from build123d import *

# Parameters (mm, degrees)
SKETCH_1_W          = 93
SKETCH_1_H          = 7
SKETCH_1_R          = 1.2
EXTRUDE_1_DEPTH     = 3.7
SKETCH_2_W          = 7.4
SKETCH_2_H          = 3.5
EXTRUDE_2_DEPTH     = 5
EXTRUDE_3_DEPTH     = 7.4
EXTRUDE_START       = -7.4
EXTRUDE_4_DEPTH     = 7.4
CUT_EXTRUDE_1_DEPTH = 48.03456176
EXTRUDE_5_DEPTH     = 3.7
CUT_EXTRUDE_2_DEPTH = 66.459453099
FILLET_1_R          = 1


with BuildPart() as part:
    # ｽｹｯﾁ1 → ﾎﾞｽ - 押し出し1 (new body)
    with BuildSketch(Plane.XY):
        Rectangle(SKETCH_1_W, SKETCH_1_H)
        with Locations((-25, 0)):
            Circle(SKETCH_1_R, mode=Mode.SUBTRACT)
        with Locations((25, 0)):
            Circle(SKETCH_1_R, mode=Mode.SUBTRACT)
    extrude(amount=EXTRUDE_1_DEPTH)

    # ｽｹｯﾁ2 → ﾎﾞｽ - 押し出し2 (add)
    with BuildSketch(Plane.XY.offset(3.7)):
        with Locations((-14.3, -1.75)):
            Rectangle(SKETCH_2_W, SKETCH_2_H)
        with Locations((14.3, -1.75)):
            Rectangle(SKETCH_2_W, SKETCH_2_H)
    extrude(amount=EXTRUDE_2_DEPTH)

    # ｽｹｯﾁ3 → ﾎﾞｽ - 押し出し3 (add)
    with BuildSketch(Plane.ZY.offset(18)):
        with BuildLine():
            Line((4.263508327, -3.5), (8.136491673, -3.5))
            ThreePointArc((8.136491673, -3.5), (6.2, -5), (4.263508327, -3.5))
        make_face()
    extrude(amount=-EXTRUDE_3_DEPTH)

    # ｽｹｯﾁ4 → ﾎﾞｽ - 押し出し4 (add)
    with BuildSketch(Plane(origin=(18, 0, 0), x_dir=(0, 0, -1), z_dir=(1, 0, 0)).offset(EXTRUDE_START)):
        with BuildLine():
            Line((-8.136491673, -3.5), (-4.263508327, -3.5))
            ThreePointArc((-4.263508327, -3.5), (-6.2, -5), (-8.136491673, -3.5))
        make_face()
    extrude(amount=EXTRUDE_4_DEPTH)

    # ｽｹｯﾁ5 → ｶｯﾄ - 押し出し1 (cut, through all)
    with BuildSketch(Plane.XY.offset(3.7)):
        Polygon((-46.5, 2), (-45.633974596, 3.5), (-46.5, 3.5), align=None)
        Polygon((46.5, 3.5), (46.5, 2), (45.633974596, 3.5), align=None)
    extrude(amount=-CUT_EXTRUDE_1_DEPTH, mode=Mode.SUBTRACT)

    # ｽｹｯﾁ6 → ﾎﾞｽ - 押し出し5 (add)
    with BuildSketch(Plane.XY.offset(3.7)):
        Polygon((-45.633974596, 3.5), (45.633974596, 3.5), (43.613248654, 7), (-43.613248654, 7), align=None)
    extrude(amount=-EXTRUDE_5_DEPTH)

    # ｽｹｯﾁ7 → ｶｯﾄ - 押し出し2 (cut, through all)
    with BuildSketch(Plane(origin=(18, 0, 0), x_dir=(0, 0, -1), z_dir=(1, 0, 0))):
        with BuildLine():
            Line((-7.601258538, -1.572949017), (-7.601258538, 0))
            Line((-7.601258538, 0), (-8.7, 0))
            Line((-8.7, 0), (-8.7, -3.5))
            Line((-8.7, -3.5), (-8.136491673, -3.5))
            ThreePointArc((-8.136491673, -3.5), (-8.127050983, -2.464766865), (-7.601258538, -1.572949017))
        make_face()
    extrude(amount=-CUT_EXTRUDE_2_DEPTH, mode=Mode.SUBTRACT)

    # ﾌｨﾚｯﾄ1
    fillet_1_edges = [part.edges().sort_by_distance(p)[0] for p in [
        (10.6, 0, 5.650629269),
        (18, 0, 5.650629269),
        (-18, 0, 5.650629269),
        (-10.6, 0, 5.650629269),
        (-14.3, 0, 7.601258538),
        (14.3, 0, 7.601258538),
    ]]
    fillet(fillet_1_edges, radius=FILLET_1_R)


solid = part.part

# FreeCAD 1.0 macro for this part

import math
import FreeCAD as App
import Part
import Sketcher

V = App.Vector
Q = App.Units.Quantity


def edges_at(feature, points):
    """Names of the edges that pass closest to the given points."""
    edges = feature.Shape.Edges
    near = lambda p: min(range(len(edges)), key=lambda i: edges[i].distToShape(Part.Vertex(*p))[0])
    return sorted({f"Edge{near(p) + 1}" for p in points})


def add_polygon(sketch, points):
    """Adds a closed chain of lines whose ends are joined by coincident constraints."""
    first, n = sketch.GeometryCount, len(points)
    for a, b in zip(points, points[1:] + points[:1]):
        sketch.addGeometry(Part.LineSegment(App.Vector(*a, 0), App.Vector(*b, 0)), False)
    for i in range(n):
        sketch.addConstraint(Sketcher.Constraint("Coincident", first + i, 2, first + (i + 1) % n, 1))

doc = App.newDocument("Part")
body = doc.addObject("PartDesign::Body", "Body")

sketch1 = doc.addObject("Sketcher::SketchObject", "Sketch")
body.addObject(sketch1)
sketch1.AttachmentSupport = (doc.XY_Plane, [""])
sketch1.MapMode = "FlatFace"
add_polygon(sketch1, [(-46.5, 3.5), (-46.5, -3.5), (46.5, -3.5), (46.5, 3.5)])
sketch1.addGeometry(Part.Circle(V(-25, 0, 0), V(0, 0, 1), 1.2), False)
sketch1.addGeometry(Part.Circle(V(25, 0, 0), V(0, 0, 1), 1.2), False)
sketch1.addConstraint([
    Sketcher.Constraint("Vertical", 0),
    Sketcher.Constraint("Horizontal", 1),
    Sketcher.Constraint("Vertical", 2),
    Sketcher.Constraint("Horizontal", 3),
    Sketcher.Constraint("Equal", 4, 5),
    Sketcher.Constraint("Symmetric", 4, 3, 5, 3, -1, 1),
    Sketcher.Constraint("Symmetric", 0, 2, 2, 2, -1, 1),
    Sketcher.Constraint("PointOnObject", 4, 3, -1),
    Sketcher.Constraint("Diameter", 4, Q("2.4 mm")),
    Sketcher.Constraint("DistanceX", 1, 1, 1, 2, Q("93 mm")),
    Sketcher.Constraint("DistanceY", 0, 2, 0, 1, Q("7 mm")),
    Sketcher.Constraint("DistanceX", 4, 3, -1, 1, Q("25 mm")),
])
pad1 = doc.addObject("PartDesign::Pad", "Pad")
body.addObject(pad1)
pad1.Profile = sketch1
pad1.Length = 3.7

sketch2 = doc.addObject("Sketcher::SketchObject", "Sketch001")
body.addObject(sketch2)
sketch2.AttachmentSupport = (doc.XY_Plane, [""])
sketch2.MapMode = "FlatFace"
sketch2.AttachmentOffset = App.Placement(V(0, 0, 3.7), App.Rotation())
add_polygon(sketch2, [(-18, 0), (-18, -3.5), (-10.6, -3.5), (-10.6, 0)])
add_polygon(sketch2, [(10.6, 0), (10.6, -3.5), (18, -3.5), (18, 0)])
sketch2.addConstraint([
    Sketcher.Constraint("Vertical", 0),
    Sketcher.Constraint("Horizontal", 1),
    Sketcher.Constraint("Vertical", 2),
    Sketcher.Constraint("Horizontal", 3),
    Sketcher.Constraint("Vertical", 4),
    Sketcher.Constraint("Horizontal", 5),
    Sketcher.Constraint("Vertical", 6),
    Sketcher.Constraint("Horizontal", 7),
    Sketcher.Constraint("Symmetric", 3, 2, 6, 2, -1, 1),
    Sketcher.Constraint("Symmetric", 1, 2, 4, 2, -2),
    Sketcher.Constraint("PointOnObject", 2, 2, -1),
    Sketcher.Constraint("DistanceX", 1, 1, 1, 2, Q("7.4 mm")),
    Sketcher.Constraint("DistanceY", 0, 2, 0, 1, Q("3.5 mm")),
    Sketcher.Constraint("DistanceX", 0, 2, -1, 1, Q("18 mm")),
])
pad2 = doc.addObject("PartDesign::Pad", "Pad001")
body.addObject(pad2)
pad2.Profile = sketch2
pad2.Length = 5

sketch3 = doc.addObject("Sketcher::SketchObject", "Sketch002")
body.addObject(sketch3)
sketch3.AttachmentSupport = (doc.YZ_Plane, [""])
sketch3.MapMode = "FlatFace"
sketch3.AttachmentOffset = App.Placement(V(0, 0, -18), App.Rotation())
sketch3.addGeometry([
    Part.LineSegment(V(-3.5, 8.1, 0), V(-3.5, 4.3, 0)),
    Part.ArcOfCircle(Part.Circle(V(-3, 6.2, 0), V(0, 0, 1), 2), math.radians(104), math.radians(256)),
], False)
sketch3.addConstraint([
    Sketcher.Constraint("Coincident", 0, 1, 1, 1),
    Sketcher.Constraint("Coincident", 1, 2, 0, 2),
    Sketcher.Constraint("Vertical", 0),
    Sketcher.Constraint("Radius", 1, Q("2 mm")),
    Sketcher.Constraint("DistanceX", 1, 3, -1, 1, Q("3 mm")),
    Sketcher.Constraint("DistanceY", -1, 1, 1, 3, Q("6.2 mm")),
    Sketcher.Constraint("DistanceX", 0, 1, -1, 1, Q("3.5 mm")),
])
pad3 = doc.addObject("PartDesign::Pad", "Pad002")
body.addObject(pad3)
pad3.Profile = sketch3
pad3.Length = 7.4

sketch4 = doc.addObject("Sketcher::SketchObject", "Sketch003")
body.addObject(sketch4)
sketch4.AttachmentSupport = (doc.YZ_Plane, [""])
sketch4.MapMode = "FlatFace"
sketch4.AttachmentOffset = App.Placement(V(0, 0, 10.6), App.Rotation())
sketch4.addGeometry([
    Part.LineSegment(V(-3.5, 4.3, 0), V(-3.5, 8.1, 0)),
    Part.ArcOfCircle(Part.Circle(V(-3, 6.2, 0), V(0, 0, 1), 2), math.radians(104), math.radians(256)),
], False)
sketch4.addConstraint([
    Sketcher.Constraint("Coincident", 0, 1, 1, 2),
    Sketcher.Constraint("Coincident", 1, 1, 0, 2),
    Sketcher.Constraint("Vertical", 0),
    Sketcher.Constraint("Radius", 1, Q("2 mm")),
    Sketcher.Constraint("DistanceX", 1, 3, -1, 1, Q("3 mm")),
    Sketcher.Constraint("DistanceY", -1, 1, 1, 3, Q("6.2 mm")),
    Sketcher.Constraint("DistanceX", 0, 1, -1, 1, Q("3.5 mm")),
])
pad4 = doc.addObject("PartDesign::Pad", "Pad003")
body.addObject(pad4)
pad4.Profile = sketch4
pad4.Length = 7.4

sketch5 = doc.addObject("Sketcher::SketchObject", "Sketch004")
body.addObject(sketch5)
sketch5.AttachmentSupport = (doc.XY_Plane, [""])
sketch5.MapMode = "FlatFace"
sketch5.AttachmentOffset = App.Placement(V(0, 0, 3.7), App.Rotation())
add_polygon(sketch5, [(-46.5, 2), (-45.6, 3.5), (-46.5, 3.5)])
add_polygon(sketch5, [(46.5, 2), (46.5, 3.5), (45.6, 3.5)])
sketch5.addConstraint([
    Sketcher.Constraint("Horizontal", 1),
    Sketcher.Constraint("Vertical", 2),
    Sketcher.Constraint("Vertical", 3),
    Sketcher.Constraint("Horizontal", 4),
    Sketcher.Constraint("Symmetric", 1, 2, 3, 2, -2),
    Sketcher.Constraint("Horizontal", 2, 2, 5, 2),
    Sketcher.Constraint("Equal", 1, 4),
    Sketcher.Constraint("Angle", 0, Q("60 deg")),
    Sketcher.Constraint("DistanceY", 2, 2, 2, 1, Q("1.5 mm")),
    Sketcher.Constraint("DistanceY", -1, 1, 2, 2, Q("2 mm")),
    Sketcher.Constraint("DistanceX", 1, 2, 3, 2, Q("93 mm")),
])
pocket1 = doc.addObject("PartDesign::Pocket", "Pocket")
body.addObject(pocket1)
pocket1.Profile = sketch5
pocket1.Type = "ThroughAll"

sketch6 = doc.addObject("Sketcher::SketchObject", "Sketch005")
body.addObject(sketch6)
sketch6.AttachmentSupport = (doc.XY_Plane, [""])
sketch6.MapMode = "FlatFace"
sketch6.AttachmentOffset = App.Placement(V(0, 0, 3.7), App.Rotation())
add_polygon(sketch6, [(-45.6, 3.5), (45.6, 3.5), (43.6, 7), (-43.6, 7)])
sketch6.addConstraint([
    Sketcher.Constraint("Horizontal", 0),
    Sketcher.Constraint("Horizontal", 2),
    Sketcher.Constraint("Equal", 1, 3),
    Sketcher.Constraint("Angle", 1, Q("120 deg")),
    Sketcher.Constraint("DistanceY", -1, 1, 1, 2, Q("7 mm")),
    Sketcher.Constraint("DistanceY", -1, 1, 0, 2, Q("3.5 mm")),
    Sketcher.Constraint("DistanceX", 0, 1, 0, 2, Q("91.267949 mm")),
    Sketcher.Constraint("DistanceX", -1, 1, 1, 2, Q("43.613249 mm")),
])
pad5 = doc.addObject("PartDesign::Pad", "Pad004")
body.addObject(pad5)
pad5.Profile = sketch6
pad5.Length = 3.7
pad5.Reversed = True

sketch7 = doc.addObject("Sketcher::SketchObject", "Sketch006")
body.addObject(sketch7)
sketch7.AttachmentSupport = (doc.YZ_Plane, [""])
sketch7.MapMode = "FlatFace"
sketch7.AttachmentOffset = App.Placement(V(0, 0, 18), App.Rotation())
sketch7.addGeometry([
    Part.LineSegment(V(-1.6, 7.6, 0), V(0, 7.6, 0)),
    Part.LineSegment(V(0, 7.6, 0), V(0, 8.7, 0)),
    Part.LineSegment(V(0, 8.7, 0), V(-3.5, 8.7, 0)),
    Part.LineSegment(V(-3.5, 8.7, 0), V(-3.5, 8.1, 0)),
    Part.ArcOfCircle(Part.Circle(V(-3, 6.2, 0), V(0, 0, 1), 2), math.radians(44), math.radians(104)),
], False)
sketch7.addConstraint([
    Sketcher.Constraint("Coincident", 0, 2, 1, 1),
    Sketcher.Constraint("Coincident", 1, 2, 2, 1),
    Sketcher.Constraint("Coincident", 2, 2, 3, 1),
    Sketcher.Constraint("Coincident", 3, 2, 4, 2),
    Sketcher.Constraint("Coincident", 4, 1, 0, 1),
    Sketcher.Constraint("Horizontal", 0),
    Sketcher.Constraint("Vertical", 1),
    Sketcher.Constraint("Horizontal", 2),
    Sketcher.Constraint("Vertical", 3),
    Sketcher.Constraint("PointOnObject", 0, 2, -2),
    Sketcher.Constraint("Radius", 4, Q("2 mm")),
    Sketcher.Constraint("DistanceX", 2, 2, 2, 1, Q("3.5 mm")),
    Sketcher.Constraint("DistanceX", 4, 3, -1, 1, Q("3 mm")),
    Sketcher.Constraint("DistanceY", -1, 1, 4, 3, Q("6.2 mm")),
    Sketcher.Constraint("DistanceY", -1, 1, 1, 2, Q("8.7 mm")),
    Sketcher.Constraint("DistanceX", 0, 1, 0, 2, Q("1.572949 mm")),
])
pocket2 = doc.addObject("PartDesign::Pocket", "Pocket001")
body.addObject(pocket2)
pocket2.Profile = sketch7
pocket2.Type = "ThroughAll"
doc.recompute()

fillet = doc.addObject("PartDesign::Fillet", "Fillet")
body.addObject(fillet)
fillet.Base = (pocket2, edges_at(pocket2, [
    (10.6, 0, 5.651),
    (18, 0, 5.651),
    (-18, 0, 5.651),
    (-10.6, 0, 5.651),
    (-14.3, 0, 7.601),
    (14.3, 0, 7.601),
]))
fillet.Radius = 1

doc.recompute()
